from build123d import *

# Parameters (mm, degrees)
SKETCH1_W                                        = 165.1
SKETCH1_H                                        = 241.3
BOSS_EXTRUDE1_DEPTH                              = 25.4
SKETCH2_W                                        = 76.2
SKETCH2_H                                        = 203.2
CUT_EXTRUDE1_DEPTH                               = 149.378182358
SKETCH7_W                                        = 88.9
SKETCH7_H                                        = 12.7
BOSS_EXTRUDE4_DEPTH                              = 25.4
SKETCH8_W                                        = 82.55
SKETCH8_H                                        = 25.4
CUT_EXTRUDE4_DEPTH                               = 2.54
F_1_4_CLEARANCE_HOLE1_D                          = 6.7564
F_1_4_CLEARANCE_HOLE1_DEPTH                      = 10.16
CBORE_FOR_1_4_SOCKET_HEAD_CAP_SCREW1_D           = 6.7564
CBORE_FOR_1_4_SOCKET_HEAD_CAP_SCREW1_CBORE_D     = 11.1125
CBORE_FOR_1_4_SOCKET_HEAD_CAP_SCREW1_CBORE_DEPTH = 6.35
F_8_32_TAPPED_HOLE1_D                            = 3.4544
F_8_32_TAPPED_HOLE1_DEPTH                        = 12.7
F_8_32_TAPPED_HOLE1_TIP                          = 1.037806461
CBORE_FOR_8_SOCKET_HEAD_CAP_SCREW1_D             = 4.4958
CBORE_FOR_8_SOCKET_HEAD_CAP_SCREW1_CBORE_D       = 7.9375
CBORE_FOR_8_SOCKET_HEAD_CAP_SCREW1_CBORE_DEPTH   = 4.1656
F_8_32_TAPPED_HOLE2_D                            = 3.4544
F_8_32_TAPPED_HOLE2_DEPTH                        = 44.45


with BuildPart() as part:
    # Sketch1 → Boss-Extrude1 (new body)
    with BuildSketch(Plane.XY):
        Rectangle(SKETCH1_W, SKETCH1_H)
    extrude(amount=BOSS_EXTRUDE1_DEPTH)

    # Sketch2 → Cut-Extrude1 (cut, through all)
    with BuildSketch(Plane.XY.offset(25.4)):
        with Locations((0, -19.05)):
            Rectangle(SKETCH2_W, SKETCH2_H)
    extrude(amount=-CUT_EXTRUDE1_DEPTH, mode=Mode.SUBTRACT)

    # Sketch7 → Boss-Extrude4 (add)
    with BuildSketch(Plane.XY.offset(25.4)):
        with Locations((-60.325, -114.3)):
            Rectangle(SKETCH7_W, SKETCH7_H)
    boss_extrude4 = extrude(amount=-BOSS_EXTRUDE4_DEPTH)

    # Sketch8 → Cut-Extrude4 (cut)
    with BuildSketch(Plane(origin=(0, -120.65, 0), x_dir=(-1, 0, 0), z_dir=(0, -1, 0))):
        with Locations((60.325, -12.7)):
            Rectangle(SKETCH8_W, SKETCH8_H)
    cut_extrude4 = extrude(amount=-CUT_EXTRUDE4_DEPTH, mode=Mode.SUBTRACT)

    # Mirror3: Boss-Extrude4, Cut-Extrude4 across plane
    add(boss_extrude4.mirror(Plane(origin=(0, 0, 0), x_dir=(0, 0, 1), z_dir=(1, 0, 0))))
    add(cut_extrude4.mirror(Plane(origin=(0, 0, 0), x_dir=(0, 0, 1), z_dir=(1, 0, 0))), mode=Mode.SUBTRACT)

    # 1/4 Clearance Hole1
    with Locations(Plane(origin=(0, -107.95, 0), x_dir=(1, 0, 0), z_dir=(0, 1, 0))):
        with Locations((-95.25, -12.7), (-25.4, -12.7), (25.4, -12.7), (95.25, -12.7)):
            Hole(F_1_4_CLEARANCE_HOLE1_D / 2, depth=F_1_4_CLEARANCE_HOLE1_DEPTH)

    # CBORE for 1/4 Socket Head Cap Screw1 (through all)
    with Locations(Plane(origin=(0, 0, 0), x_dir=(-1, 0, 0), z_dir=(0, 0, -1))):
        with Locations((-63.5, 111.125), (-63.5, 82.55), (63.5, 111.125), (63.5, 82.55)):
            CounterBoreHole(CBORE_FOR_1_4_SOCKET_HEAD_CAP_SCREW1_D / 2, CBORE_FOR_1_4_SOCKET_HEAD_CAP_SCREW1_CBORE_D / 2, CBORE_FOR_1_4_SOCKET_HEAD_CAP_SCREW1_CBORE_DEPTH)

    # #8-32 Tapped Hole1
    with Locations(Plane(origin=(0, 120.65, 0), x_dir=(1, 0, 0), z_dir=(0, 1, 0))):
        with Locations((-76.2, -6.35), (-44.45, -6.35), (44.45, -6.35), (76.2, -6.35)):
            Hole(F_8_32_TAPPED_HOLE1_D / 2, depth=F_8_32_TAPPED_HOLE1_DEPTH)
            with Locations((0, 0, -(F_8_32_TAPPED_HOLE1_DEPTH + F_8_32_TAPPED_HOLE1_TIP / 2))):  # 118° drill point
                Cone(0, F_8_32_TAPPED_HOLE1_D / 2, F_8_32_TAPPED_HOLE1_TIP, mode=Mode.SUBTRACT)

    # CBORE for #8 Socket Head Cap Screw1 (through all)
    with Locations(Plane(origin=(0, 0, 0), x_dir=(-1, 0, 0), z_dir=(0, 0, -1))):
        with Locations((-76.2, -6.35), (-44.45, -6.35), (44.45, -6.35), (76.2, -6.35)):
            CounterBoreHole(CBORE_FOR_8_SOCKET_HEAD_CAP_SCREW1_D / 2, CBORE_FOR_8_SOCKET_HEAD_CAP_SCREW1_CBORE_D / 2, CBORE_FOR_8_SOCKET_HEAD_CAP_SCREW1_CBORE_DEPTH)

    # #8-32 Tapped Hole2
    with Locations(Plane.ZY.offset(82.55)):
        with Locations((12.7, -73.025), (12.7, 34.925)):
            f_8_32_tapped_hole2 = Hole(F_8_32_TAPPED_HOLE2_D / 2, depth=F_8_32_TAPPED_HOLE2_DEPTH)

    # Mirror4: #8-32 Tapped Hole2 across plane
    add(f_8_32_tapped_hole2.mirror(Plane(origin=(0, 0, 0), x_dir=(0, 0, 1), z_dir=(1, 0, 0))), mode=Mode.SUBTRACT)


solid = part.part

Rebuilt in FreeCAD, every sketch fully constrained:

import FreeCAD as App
import Part
import Sketcher

V = App.Vector
Q = App.Units.Quantity

doc = App.newDocument("Part")
body = doc.addObject("PartDesign::Body", "Body")

sketch1 = doc.addObject("Sketcher::SketchObject", "Sketch")
body.addObject(sketch1)
sketch1.AttachmentSupport = (doc.XY_Plane, [""])
sketch1.MapMode = "FlatFace"
sketch1.addGeometry([
    Part.LineSegment(V(-82.55, 120.65, 0), V(-82.55, -120.65, 0)),
    Part.LineSegment(V(-82.55, -120.65, 0), V(82.55, -120.65, 0)),
    Part.LineSegment(V(82.55, -120.65, 0), V(82.55, 120.65, 0)),
    Part.LineSegment(V(82.55, 120.65, 0), V(-82.55, 120.65, 0)),
], False)
sketch1.addConstraint([
    Sketcher.Constraint("Coincident", 0, 2, 1, 1),
    Sketcher.Constraint("Coincident", 1, 2, 2, 1),
    Sketcher.Constraint("Coincident", 2, 2, 3, 1),
    Sketcher.Constraint("Coincident", 3, 2, 0, 1),
    Sketcher.Constraint("Vertical", 0),
    Sketcher.Constraint("Horizontal", 1),
    Sketcher.Constraint("Vertical", 2),
    Sketcher.Constraint("Horizontal", 3),
    Sketcher.Constraint("Symmetric", 0, 2, 2, 2, -1, 1),
    Sketcher.Constraint("DistanceX", 1, 1, 1, 2, Q("6.5 in")),
    Sketcher.Constraint("DistanceY", 0, 2, 0, 1, Q("9.5 in")),
])
pad1 = doc.addObject("PartDesign::Pad", "Pad")
body.addObject(pad1)
pad1.Profile = sketch1
pad1.Length = Q("1 in")

sketch2 = doc.addObject("Sketcher::SketchObject", "Sketch001")
body.addObject(sketch2)
sketch2.AttachmentSupport = (doc.XY_Plane, [""])
sketch2.MapMode = "FlatFace"
sketch2.AttachmentOffset = App.Placement(V(0, 0, 1 * 25.4), App.Rotation())
sketch2.addGeometry([
    Part.LineSegment(V(-38.1, 82.55, 0), V(-38.1, -120.65, 0)),
    Part.LineSegment(V(-38.1, -120.65, 0), V(38.1, -120.65, 0)),
    Part.LineSegment(V(38.1, -120.65, 0), V(38.1, 82.55, 0)),
    Part.LineSegment(V(38.1, 82.55, 0), V(-38.1, 82.55, 0)),
], False)
sketch2.addConstraint([
    Sketcher.Constraint("Coincident", 0, 2, 1, 1),
    Sketcher.Constraint("Coincident", 1, 2, 2, 1),
    Sketcher.Constraint("Coincident", 2, 2, 3, 1),
    Sketcher.Constraint("Coincident", 3, 2, 0, 1),
    Sketcher.Constraint("Vertical", 0),
    Sketcher.Constraint("Horizontal", 1),
    Sketcher.Constraint("Vertical", 2),
    Sketcher.Constraint("Horizontal", 3),
    Sketcher.Constraint("DistanceX", 1, 1, 1, 2, Q("3 in")),
    Sketcher.Constraint("DistanceY", 0, 2, 0, 1, Q("8 in")),
    Sketcher.Constraint("DistanceX", 0, 2, -1, 1, Q("1.5 in")),
    Sketcher.Constraint("DistanceY", 0, 2, -1, 1, Q("4.75 in")),
])
pocket1 = doc.addObject("PartDesign::Pocket", "Pocket")
body.addObject(pocket1)
pocket1.Profile = sketch2
pocket1.Type = "ThroughAll"

sketch3 = doc.addObject("Sketcher::SketchObject", "Sketch002")
body.addObject(sketch3)
sketch3.AttachmentSupport = (doc.XY_Plane, [""])
sketch3.MapMode = "FlatFace"
sketch3.AttachmentOffset = App.Placement(V(0, 0, 1 * 25.4), App.Rotation())
sketch3.addGeometry([
    Part.LineSegment(V(-104.775, -107.95, 0), V(-104.775, -120.65, 0)),
    Part.LineSegment(V(-104.775, -120.65, 0), V(-15.875, -120.65, 0)),
    Part.LineSegment(V(-15.875, -120.65, 0), V(-15.875, -107.95, 0)),
    Part.LineSegment(V(-15.875, -107.95, 0), V(-104.775, -107.95, 0)),
], False)
sketch3.addConstraint([
    Sketcher.Constraint("Coincident", 0, 2, 1, 1),
    Sketcher.Constraint("Coincident", 1, 2, 2, 1),
    Sketcher.Constraint("Coincident", 2, 2, 3, 1),
    Sketcher.Constraint("Coincident", 3, 2, 0, 1),
    Sketcher.Constraint("Vertical", 0),
    Sketcher.Constraint("Horizontal", 1),
    Sketcher.Constraint("Vertical", 2),
    Sketcher.Constraint("Horizontal", 3),
    Sketcher.Constraint("DistanceX", 1, 1, 1, 2, Q("3.5 in")),
    Sketcher.Constraint("DistanceY", 0, 2, 0, 1, Q("0.5 in")),
    Sketcher.Constraint("DistanceY", 0, 2, -1, 1, Q("4.75 in")),
    Sketcher.Constraint("DistanceX", 0, 2, -1, 1, Q("4.125 in")),
])
pad2 = doc.addObject("PartDesign::Pad", "Pad001")
body.addObject(pad2)
pad2.Profile = sketch3
pad2.Length = Q("1 in")
pad2.Reversed = True

sketch4 = doc.addObject("Sketcher::SketchObject", "Sketch003")
body.addObject(sketch4)
sketch4.AttachmentSupport = (doc.XZ_Plane, [""])
sketch4.MapMode = "FlatFace"
sketch4.AttachmentOffset = App.Placement(V(0, 0, 4.75 * 25.4), App.Rotation())
sketch4.addGeometry([
    Part.LineSegment(V(-19.05, 0, 0), V(-19.05, 25.4, 0)),
    Part.LineSegment(V(-19.05, 25.4, 0), V(-101.6, 25.4, 0)),
    Part.LineSegment(V(-101.6, 25.4, 0), V(-101.6, 0, 0)),
    Part.LineSegment(V(-101.6, 0, 0), V(-19.05, 0, 0)),
], False)
sketch4.addConstraint([
    Sketcher.Constraint("Coincident", 0, 2, 1, 1),
    Sketcher.Constraint("Coincident", 1, 2, 2, 1),
    Sketcher.Constraint("Coincident", 2, 2, 3, 1),
    Sketcher.Constraint("Coincident", 3, 2, 0, 1),
    Sketcher.Constraint("Vertical", 0),
    Sketcher.Constraint("Horizontal", 1),
    Sketcher.Constraint("Vertical", 2),
    Sketcher.Constraint("Horizontal", 3),
    Sketcher.Constraint("PointOnObject", 2, 2, -1),
    Sketcher.Constraint("DistanceY", 0, 1, 0, 2, Q("1 in")),
    Sketcher.Constraint("DistanceX", 1, 2, -1, 1, Q("4 in")),
    Sketcher.Constraint("DistanceX", 1, 2, 1, 1, Q("3.25 in")),
])
pocket2 = doc.addObject("PartDesign::Pocket", "Pocket001")
body.addObject(pocket2)
pocket2.Profile = sketch4
pocket2.Length = Q("0.1 in")
doc.recompute()

mirrored = doc.addObject("PartDesign::Mirrored", "Mirrored")
body.addObject(mirrored)
mirrored.Originals = [pad2, pocket2]
mirrored.MirrorPlane = (doc.YZ_Plane, [""])
body.Tip = mirrored

sketch5 = doc.addObject("Sketcher::SketchObject", "Sketch004")
body.addObject(sketch5)
sketch5.AttachmentSupport = (doc.XZ_Plane, [""])
sketch5.MapMode = "FlatFace"
sketch5.AttachmentOffset = App.Placement(V(0, 0, 4.25 * 25.4), App.Rotation())
sketch5.addGeometry([
    Part.Circle(V(-95.25, 12.7, 0), V(0, 0, 1), 3.3782),
    Part.Circle(V(-25.4, 12.7, 0), V(0, 0, 1), 3.3782),
    Part.Circle(V(25.4, 12.7, 0), V(0, 0, 1), 3.3782),
    Part.Circle(V(95.25, 12.7, 0), V(0, 0, 1), 3.3782),
], False)
sketch5.addConstraint([
    Sketcher.Constraint("Equal", 0, 1),
    Sketcher.Constraint("Equal", 1, 2),
    Sketcher.Constraint("Equal", 2, 3),
    Sketcher.Constraint("Symmetric", 1, 3, 2, 3, -2),
    Sketcher.Constraint("Symmetric", 0, 3, 3, 3, -2),
    Sketcher.Constraint("Horizontal", 0, 3, 1, 3),
    Sketcher.Constraint("Diameter", 0, Q("0.266 in")),
    Sketcher.Constraint("DistanceX", 1, 3, -1, 1, Q("1 in")),
    Sketcher.Constraint("DistanceY", -1, 1, 0, 3, Q("0.5 in")),
    Sketcher.Constraint("DistanceX", 0, 3, 3, 3, Q("7.5 in")),
])
doc.recompute()
hole = doc.addObject("PartDesign::Hole", "Hole")
body.addObject(hole)
hole.Profile = sketch5
hole.ThreadType = "None"
hole.Diameter = Q("0.266 in")
hole.DepthType = "Dimension"
hole.Depth = Q("0.4 in")
hole.DrillPoint = "Flat"
hole.Reversed = True

sketch6 = doc.addObject("Sketcher::SketchObject", "Sketch005")
body.addObject(sketch6)
sketch6.AttachmentSupport = (doc.XY_Plane, [""])
sketch6.MapMode = "FlatFace"
sketch6.addGeometry([
    Part.Circle(V(63.5, 111.125, 0), V(0, 0, 1), 3.3782),
    Part.Circle(V(63.5, 82.55, 0), V(0, 0, 1), 3.3782),
    Part.Circle(V(-63.5, 111.125, 0), V(0, 0, 1), 3.3782),
    Part.Circle(V(-63.5, 82.55, 0), V(0, 0, 1), 3.3782),
], False)
sketch6.addConstraint([
    Sketcher.Constraint("Equal", 0, 1),
    Sketcher.Constraint("Equal", 1, 2),
    Sketcher.Constraint("Equal", 2, 3),
    Sketcher.Constraint("Symmetric", 0, 3, 2, 3, -2),
    Sketcher.Constraint("Symmetric", 1, 3, 3, 3, -2),
    Sketcher.Constraint("Vertical", 0, 3, 1, 3),
    Sketcher.Constraint("Diameter", 0, Q("0.266 in")),
    Sketcher.Constraint("DistanceX", 2, 3, 0, 3, Q("5 in")),
    Sketcher.Constraint("DistanceY", -1, 1, 1, 3, Q("3.25 in")),
    Sketcher.Constraint("DistanceY", -1, 1, 0, 3, Q("4.375 in")),
])
doc.recompute()
hole2 = doc.addObject("PartDesign::Hole", "Hole001")
body.addObject(hole2)
hole2.Profile = sketch6
hole2.ThreadType = "None"
hole2.Diameter = Q("0.266 in")
hole2.DepthType = "ThroughAll"
hole2.HoleCutType = "Counterbore"
hole2.HoleCutDiameter = Q("0.4375 in")
hole2.HoleCutDepth = Q("0.25 in")
hole2.Reversed = True

sketch7 = doc.addObject("Sketcher::SketchObject", "Sketch006")
body.addObject(sketch7)
sketch7.AttachmentSupport = (doc.XZ_Plane, [""])
sketch7.MapMode = "FlatFace"
sketch7.AttachmentOffset = App.Placement(V(0, 0, -4.75 * 25.4), App.Rotation())
sketch7.addGeometry([
    Part.Circle(V(-76.2, 6.35, 0), V(0, 0, 1), 1.7272),
    Part.Circle(V(-44.45, 6.35, 0), V(0, 0, 1), 1.7272),
    Part.Circle(V(44.45, 6.35, 0), V(0, 0, 1), 1.7272),
    Part.Circle(V(76.2, 6.35, 0), V(0, 0, 1), 1.7272),
], False)
sketch7.addConstraint([
    Sketcher.Constraint("Equal", 0, 1),
    Sketcher.Constraint("Equal", 1, 2),
    Sketcher.Constraint("Equal", 2, 3),
    Sketcher.Constraint("Symmetric", 1, 3, 2, 3, -2),
    Sketcher.Constraint("Symmetric", 0, 3, 3, 3, -2),
    Sketcher.Constraint("Horizontal", 0, 3, 1, 3),
    Sketcher.Constraint("Diameter", 0, Q("0.136 in")),
    Sketcher.Constraint("DistanceX", 0, 3, -1, 1, Q("3 in")),
    Sketcher.Constraint("DistanceX", 1, 3, 2, 3, Q("3.5 in")),
    Sketcher.Constraint("DistanceY", -1, 1, 0, 3, Q("0.25 in")),
])
doc.recompute()
hole3 = doc.addObject("PartDesign::Hole", "Hole002")
body.addObject(hole3)
hole3.Profile = sketch7
hole3.ThreadType = "None"
hole3.Diameter = Q("0.136 in")
hole3.DepthType = "Dimension"
hole3.Depth = Q("0.5 in")
hole3.DrillPoint = "Angled"
hole3.DrillPointAngle = 118
hole3.Reversed = True

sketch8 = doc.addObject("Sketcher::SketchObject", "Sketch007")
body.addObject(sketch8)
sketch8.AttachmentSupport = (doc.XY_Plane, [""])
sketch8.MapMode = "FlatFace"
sketch8.addGeometry([
    Part.Circle(V(76.2, -6.35, 0), V(0, 0, 1), 2.2479),
    Part.Circle(V(44.45, -6.35, 0), V(0, 0, 1), 2.2479),
    Part.Circle(V(-44.45, -6.35, 0), V(0, 0, 1), 2.2479),
    Part.Circle(V(-76.2, -6.35, 0), V(0, 0, 1), 2.2479),
], False)
sketch8.addConstraint([
    Sketcher.Constraint("Equal", 0, 1),
    Sketcher.Constraint("Equal", 1, 2),
    Sketcher.Constraint("Equal", 2, 3),
    Sketcher.Constraint("Symmetric", 1, 3, 2, 3, -2),
    Sketcher.Constraint("Symmetric", 0, 3, 3, 3, -2),
    Sketcher.Constraint("Horizontal", 0, 3, 1, 3),
    Sketcher.Constraint("Diameter", 0, Q("0.177 in")),
    Sketcher.Constraint("DistanceX", -1, 1, 0, 3, Q("3 in")),
    Sketcher.Constraint("DistanceX", 2, 3, 1, 3, Q("3.5 in")),
    Sketcher.Constraint("DistanceY", 0, 3, -1, 1, Q("0.25 in")),
])
doc.recompute()
hole4 = doc.addObject("PartDesign::Hole", "Hole003")
body.addObject(hole4)
hole4.Profile = sketch8
hole4.ThreadType = "None"
hole4.Diameter = Q("0.177 in")
hole4.DepthType = "ThroughAll"
hole4.HoleCutType = "Counterbore"
hole4.HoleCutDiameter = Q("0.3125 in")
hole4.HoleCutDepth = Q("0.164 in")
hole4.Reversed = True

sketch9 = doc.addObject("Sketcher::SketchObject", "Sketch008")
body.addObject(sketch9)
sketch9.AttachmentSupport = (doc.YZ_Plane, [""])
sketch9.MapMode = "FlatFace"
sketch9.AttachmentOffset = App.Placement(V(0, 0, -3.25 * 25.4), App.Rotation())
sketch9.addGeometry([
    Part.Circle(V(-73.025, 12.7, 0), V(0, 0, 1), 1.7272),
    Part.Circle(V(34.925, 12.7, 0), V(0, 0, 1), 1.7272),
], False)
sketch9.addConstraint([
    Sketcher.Constraint("Equal", 0, 1),
    Sketcher.Constraint("Horizontal", 0, 3, 1, 3),
    Sketcher.Constraint("Diameter", 0, Q("0.136 in")),
    Sketcher.Constraint("DistanceY", -1, 1, 0, 3, Q("0.5 in")),
    Sketcher.Constraint("DistanceX", 0, 3, 1, 3, Q("4.25 in")),
    Sketcher.Constraint("DistanceX", 0, 3, -1, 1, Q("2.875 in")),
])
doc.recompute()
hole5 = doc.addObject("PartDesign::Hole", "Hole004")
body.addObject(hole5)
hole5.Profile = sketch9
hole5.ThreadType = "None"
hole5.Diameter = Q("0.136 in")
hole5.DepthType = "Dimension"
hole5.Depth = Q("1.75 in")
hole5.DrillPoint = "Flat"
hole5.Reversed = True
doc.recompute()

mirrored2 = doc.addObject("PartDesign::Mirrored", "Mirrored001")
body.addObject(mirrored2)
mirrored2.Originals = [hole5]
mirrored2.MirrorPlane = (doc.YZ_Plane, [""])
body.Tip = mirrored2

doc.recompute()
